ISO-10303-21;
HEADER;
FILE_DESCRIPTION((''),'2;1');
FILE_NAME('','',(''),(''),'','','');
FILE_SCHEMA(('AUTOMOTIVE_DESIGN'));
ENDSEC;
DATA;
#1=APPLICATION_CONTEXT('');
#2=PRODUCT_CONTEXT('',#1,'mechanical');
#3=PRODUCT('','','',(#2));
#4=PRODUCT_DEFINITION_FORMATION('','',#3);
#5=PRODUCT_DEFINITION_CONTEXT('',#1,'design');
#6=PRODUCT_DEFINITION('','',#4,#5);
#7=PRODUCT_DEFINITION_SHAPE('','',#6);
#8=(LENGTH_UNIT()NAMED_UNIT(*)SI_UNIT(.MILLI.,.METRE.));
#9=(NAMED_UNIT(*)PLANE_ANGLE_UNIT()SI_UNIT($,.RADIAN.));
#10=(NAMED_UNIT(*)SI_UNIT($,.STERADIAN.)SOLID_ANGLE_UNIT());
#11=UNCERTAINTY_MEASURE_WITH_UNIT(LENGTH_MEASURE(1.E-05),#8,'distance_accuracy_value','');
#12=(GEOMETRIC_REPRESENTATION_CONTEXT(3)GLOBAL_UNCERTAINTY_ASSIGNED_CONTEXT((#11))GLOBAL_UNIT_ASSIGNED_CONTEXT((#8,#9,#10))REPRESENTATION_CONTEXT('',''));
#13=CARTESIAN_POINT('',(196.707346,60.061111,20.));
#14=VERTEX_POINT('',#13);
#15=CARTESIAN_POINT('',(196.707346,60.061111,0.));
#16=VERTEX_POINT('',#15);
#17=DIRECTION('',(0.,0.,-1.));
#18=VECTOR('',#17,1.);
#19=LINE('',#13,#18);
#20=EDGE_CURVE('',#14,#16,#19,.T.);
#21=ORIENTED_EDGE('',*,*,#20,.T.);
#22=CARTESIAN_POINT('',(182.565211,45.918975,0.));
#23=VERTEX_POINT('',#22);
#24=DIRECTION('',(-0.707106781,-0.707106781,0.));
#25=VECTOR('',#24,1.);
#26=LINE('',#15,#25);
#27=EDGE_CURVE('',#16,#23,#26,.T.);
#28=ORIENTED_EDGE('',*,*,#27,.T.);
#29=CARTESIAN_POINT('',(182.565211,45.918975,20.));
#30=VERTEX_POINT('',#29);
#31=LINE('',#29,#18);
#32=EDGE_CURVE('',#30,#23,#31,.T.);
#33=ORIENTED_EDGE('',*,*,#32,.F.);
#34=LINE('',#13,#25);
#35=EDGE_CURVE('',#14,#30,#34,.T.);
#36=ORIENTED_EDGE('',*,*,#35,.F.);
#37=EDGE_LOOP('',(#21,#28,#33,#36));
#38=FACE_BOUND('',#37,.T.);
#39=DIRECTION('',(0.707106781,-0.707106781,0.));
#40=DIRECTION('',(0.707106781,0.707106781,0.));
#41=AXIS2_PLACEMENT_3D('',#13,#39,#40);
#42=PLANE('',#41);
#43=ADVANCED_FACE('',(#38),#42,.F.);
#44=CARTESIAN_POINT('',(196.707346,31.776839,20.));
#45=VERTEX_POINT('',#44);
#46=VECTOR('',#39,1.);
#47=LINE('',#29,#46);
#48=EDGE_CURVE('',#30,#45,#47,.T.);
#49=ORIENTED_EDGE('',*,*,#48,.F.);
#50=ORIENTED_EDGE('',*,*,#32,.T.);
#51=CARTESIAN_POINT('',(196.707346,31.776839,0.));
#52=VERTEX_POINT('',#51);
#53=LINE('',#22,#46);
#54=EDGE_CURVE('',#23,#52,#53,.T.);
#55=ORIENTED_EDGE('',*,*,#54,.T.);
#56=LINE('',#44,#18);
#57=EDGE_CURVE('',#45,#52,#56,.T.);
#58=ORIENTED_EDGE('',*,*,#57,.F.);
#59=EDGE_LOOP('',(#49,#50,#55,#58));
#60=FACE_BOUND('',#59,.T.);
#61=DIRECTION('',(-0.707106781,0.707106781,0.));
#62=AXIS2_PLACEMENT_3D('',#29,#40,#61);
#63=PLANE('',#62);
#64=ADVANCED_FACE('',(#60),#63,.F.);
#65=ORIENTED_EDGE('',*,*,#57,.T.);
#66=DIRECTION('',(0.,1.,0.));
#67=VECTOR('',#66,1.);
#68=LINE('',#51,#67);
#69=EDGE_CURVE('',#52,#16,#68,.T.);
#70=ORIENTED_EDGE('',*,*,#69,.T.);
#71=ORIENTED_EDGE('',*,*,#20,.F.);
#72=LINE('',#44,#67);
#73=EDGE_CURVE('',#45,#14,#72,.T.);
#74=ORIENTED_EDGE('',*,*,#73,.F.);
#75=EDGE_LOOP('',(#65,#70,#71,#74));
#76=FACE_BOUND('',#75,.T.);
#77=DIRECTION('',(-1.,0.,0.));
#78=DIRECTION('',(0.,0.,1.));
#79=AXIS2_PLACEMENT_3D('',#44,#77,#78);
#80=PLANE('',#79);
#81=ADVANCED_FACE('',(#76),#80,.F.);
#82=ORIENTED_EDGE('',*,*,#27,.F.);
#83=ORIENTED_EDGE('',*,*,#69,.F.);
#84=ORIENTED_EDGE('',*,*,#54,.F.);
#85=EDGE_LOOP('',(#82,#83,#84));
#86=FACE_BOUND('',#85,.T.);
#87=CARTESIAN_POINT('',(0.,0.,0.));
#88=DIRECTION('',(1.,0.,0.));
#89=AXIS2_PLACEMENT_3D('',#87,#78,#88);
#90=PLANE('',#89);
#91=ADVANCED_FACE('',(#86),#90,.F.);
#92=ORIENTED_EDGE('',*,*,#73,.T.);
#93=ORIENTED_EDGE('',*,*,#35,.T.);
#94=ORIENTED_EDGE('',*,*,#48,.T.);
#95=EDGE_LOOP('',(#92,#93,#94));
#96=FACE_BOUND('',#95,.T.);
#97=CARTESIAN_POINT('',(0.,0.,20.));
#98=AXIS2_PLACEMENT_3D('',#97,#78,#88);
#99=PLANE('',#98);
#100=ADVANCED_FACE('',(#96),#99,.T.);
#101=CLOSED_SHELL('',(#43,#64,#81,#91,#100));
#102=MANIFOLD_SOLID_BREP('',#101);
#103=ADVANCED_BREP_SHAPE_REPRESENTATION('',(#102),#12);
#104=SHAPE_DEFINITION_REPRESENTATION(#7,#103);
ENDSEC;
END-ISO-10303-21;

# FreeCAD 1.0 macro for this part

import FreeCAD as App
import Part
import Sketcher
from FreeCAD import Vector


def add_polygon(sketch, points):
    """Adds a closed chain of lines whose ends are joined by coincident constraints."""
    first, n = sketch.GeometryCount, len(points)
    for a, b in zip(points, points[1:] + points[:1]):
        sketch.addGeometry(Part.LineSegment(App.Vector(*a, 0), App.Vector(*b, 0)), False)
    for i in range(n):
        sketch.addConstraint(Sketcher.Constraint("Coincident", first + i, 2, first + (i + 1) % n, 1))

doc = App.newDocument("Part")
body = doc.addObject("PartDesign::Body", "Body")

sketch1 = body.newObject("Sketcher::SketchObject", "Sketch")
sketch1.AttachmentSupport = (doc.getObject("XY_Plane"), [""])
sketch1.MapMode = "FlatFace"
add_polygon(sketch1, [(196.707346, 60.061111), (182.565211, 45.918975), (196.707346, 31.776839)])
sketch1.addConstraint(Sketcher.Constraint("Vertical", 2))
sketch1.addConstraint(Sketcher.Constraint("Perpendicular", 0, 1))
sketch1.addConstraint(Sketcher.Constraint("Equal", 0, 1))
sketch1.addConstraint(Sketcher.Constraint("Distance", 0, 20.0))
sketch1.addConstraint(Sketcher.Constraint("DistanceX", -1, 1, 0, 2, 182.565211))
sketch1.addConstraint(Sketcher.Constraint("DistanceY", -1, 1, 1, 2, 31.776839))
pad1 = body.newObject("PartDesign::Pad", "Pad")
pad1.Profile = sketch1
pad1.Length = 20

doc.recompute()
